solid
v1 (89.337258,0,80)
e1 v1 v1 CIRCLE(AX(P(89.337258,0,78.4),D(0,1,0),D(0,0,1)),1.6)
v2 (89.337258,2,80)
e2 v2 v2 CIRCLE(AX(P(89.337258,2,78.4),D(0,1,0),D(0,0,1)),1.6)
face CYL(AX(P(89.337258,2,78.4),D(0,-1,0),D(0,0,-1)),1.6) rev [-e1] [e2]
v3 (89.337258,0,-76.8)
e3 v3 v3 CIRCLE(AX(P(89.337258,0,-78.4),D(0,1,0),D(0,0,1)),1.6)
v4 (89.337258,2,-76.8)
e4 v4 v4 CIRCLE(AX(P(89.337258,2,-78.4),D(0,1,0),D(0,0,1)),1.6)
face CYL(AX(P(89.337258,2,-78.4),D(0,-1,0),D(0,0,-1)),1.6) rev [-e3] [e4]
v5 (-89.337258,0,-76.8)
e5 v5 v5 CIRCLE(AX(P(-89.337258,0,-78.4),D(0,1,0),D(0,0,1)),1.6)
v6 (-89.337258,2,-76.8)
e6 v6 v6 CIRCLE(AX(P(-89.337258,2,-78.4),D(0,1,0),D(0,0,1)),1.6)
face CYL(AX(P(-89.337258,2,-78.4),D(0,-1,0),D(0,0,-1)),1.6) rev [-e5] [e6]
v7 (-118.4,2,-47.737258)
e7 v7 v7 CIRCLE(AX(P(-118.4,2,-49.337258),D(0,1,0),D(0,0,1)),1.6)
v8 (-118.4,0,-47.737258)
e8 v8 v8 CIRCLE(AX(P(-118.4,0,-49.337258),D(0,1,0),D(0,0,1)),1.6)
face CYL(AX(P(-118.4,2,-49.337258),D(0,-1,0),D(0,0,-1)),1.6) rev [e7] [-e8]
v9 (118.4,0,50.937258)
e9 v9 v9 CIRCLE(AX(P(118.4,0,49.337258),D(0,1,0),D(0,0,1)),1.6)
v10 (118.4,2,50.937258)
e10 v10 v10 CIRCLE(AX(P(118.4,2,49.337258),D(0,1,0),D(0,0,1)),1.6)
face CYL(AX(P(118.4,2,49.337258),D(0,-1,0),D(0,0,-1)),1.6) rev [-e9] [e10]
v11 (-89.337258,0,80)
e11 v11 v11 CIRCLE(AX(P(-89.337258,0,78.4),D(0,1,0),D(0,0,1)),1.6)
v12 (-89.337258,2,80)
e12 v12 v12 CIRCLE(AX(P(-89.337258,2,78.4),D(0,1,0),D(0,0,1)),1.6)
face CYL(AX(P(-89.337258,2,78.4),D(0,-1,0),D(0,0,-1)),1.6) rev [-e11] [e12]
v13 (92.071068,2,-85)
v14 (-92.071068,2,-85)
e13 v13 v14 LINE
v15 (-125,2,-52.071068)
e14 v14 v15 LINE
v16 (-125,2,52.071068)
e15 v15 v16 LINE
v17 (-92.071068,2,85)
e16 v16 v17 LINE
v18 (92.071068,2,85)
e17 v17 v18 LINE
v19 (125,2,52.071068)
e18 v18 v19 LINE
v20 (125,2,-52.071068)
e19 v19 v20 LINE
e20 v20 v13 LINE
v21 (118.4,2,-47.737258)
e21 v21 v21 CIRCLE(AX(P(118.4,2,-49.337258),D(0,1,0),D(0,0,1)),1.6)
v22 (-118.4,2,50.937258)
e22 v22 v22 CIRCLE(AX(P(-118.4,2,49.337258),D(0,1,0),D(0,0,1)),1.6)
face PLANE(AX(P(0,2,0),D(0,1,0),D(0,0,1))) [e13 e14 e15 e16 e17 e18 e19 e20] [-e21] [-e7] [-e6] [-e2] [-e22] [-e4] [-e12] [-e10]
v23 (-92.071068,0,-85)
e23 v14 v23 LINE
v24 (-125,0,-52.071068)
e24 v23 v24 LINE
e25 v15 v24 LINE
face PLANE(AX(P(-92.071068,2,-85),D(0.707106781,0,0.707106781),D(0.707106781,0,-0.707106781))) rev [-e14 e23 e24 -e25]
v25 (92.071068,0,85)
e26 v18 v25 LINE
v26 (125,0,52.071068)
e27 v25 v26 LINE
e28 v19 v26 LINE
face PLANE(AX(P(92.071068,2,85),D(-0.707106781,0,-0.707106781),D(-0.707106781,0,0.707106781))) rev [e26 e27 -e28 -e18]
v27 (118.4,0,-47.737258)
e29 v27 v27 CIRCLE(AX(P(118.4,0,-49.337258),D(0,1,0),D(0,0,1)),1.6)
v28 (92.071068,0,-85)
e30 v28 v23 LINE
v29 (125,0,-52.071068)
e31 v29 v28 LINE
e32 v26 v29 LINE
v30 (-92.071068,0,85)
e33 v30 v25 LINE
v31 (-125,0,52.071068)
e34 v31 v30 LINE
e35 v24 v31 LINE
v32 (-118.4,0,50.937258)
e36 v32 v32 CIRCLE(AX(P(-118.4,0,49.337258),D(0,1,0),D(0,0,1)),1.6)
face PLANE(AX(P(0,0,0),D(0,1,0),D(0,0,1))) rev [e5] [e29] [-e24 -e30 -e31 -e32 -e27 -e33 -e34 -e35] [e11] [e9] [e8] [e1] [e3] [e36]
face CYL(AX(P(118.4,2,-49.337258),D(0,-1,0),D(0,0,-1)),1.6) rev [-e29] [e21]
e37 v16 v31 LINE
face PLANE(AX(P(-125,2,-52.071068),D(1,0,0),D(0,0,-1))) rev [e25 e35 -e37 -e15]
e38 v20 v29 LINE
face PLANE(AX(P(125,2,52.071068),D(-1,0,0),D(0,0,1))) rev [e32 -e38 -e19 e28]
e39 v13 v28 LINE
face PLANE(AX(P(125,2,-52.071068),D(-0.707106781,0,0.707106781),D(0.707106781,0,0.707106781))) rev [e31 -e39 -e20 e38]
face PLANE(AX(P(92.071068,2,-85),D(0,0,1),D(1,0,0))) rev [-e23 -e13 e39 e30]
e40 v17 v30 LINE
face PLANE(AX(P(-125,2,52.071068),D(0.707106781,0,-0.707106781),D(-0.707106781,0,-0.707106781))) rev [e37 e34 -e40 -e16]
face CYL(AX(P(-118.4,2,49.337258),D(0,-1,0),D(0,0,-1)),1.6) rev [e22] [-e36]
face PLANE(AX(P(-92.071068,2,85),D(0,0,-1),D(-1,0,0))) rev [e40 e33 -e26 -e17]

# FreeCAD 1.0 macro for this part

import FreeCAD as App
import Part
import Sketcher

doc = App.newDocument("Part")
body = doc.addObject("PartDesign::Body", "Body")

sketch1 = doc.addObject("Sketcher::SketchObject", "Sketch")
body.addObject(sketch1)
sketch1.AttachmentSupport = (doc.XZ_Plane, [""])
sketch1.MapMode = "FlatFace"
sketch1.addGeometry(Part.LineSegment(App.Vector(125, -52.1, 0), App.Vector(92.1, -85, 0)), False)
sketch1.addGeometry(Part.LineSegment(App.Vector(92.1, -85, 0), App.Vector(-92.1, -85, 0)), False)
sketch1.addGeometry(Part.LineSegment(App.Vector(-92.1, -85, 0), App.Vector(-125, -52.1, 0)), False)
sketch1.addGeometry(Part.LineSegment(App.Vector(-125, -52.1, 0), App.Vector(-125, 52.1, 0)), False)
sketch1.addGeometry(Part.LineSegment(App.Vector(-125, 52.1, 0), App.Vector(-92.1, 85, 0)), False)
sketch1.addGeometry(Part.LineSegment(App.Vector(-92.1, 85, 0), App.Vector(92.1, 85, 0)), False)
sketch1.addGeometry(Part.LineSegment(App.Vector(92.1, 85, 0), App.Vector(125, 52.1, 0)), False)
sketch1.addGeometry(Part.LineSegment(App.Vector(125, 52.1, 0), App.Vector(125, -52.1, 0)), False)
sketch1.addGeometry(Part.Circle(App.Vector(-89.3, 78.4, 0), App.Vector(0, 0, 1), 1.6), False)
sketch1.addGeometry(Part.Circle(App.Vector(-118.4, 49.3, 0), App.Vector(0, 0, 1), 1.6), False)
sketch1.addGeometry(Part.Circle(App.Vector(89.3, 78.4, 0), App.Vector(0, 0, 1), 1.6), False)
sketch1.addGeometry(Part.Circle(App.Vector(118.4, 49.3, 0), App.Vector(0, 0, 1), 1.6), False)
sketch1.addGeometry(Part.Circle(App.Vector(-118.4, -49.3, 0), App.Vector(0, 0, 1), 1.6), False)
sketch1.addGeometry(Part.Circle(App.Vector(-89.3, -78.4, 0), App.Vector(0, 0, 1), 1.6), False)
sketch1.addGeometry(Part.Circle(App.Vector(118.4, -49.3, 0), App.Vector(0, 0, 1), 1.6), False)
sketch1.addGeometry(Part.Circle(App.Vector(89.3, -78.4, 0), App.Vector(0, 0, 1), 1.6), False)
sketch1.addConstraint(Sketcher.Constraint("Coincident", 0, 2, 1, 1))
sketch1.addConstraint(Sketcher.Constraint("Coincident", 1, 2, 2, 1))
sketch1.addConstraint(Sketcher.Constraint("Coincident", 2, 2, 3, 1))
sketch1.addConstraint(Sketcher.Constraint("Coincident", 3, 2, 4, 1))
sketch1.addConstraint(Sketcher.Constraint("Coincident", 4, 2, 5, 1))
sketch1.addConstraint(Sketcher.Constraint("Coincident", 5, 2, 6, 1))
sketch1.addConstraint(Sketcher.Constraint("Coincident", 6, 2, 7, 1))
sketch1.addConstraint(Sketcher.Constraint("Coincident", 7, 2, 0, 1))
sketch1.addConstraint(Sketcher.Constraint("Horizontal", 1))
sketch1.addConstraint(Sketcher.Constraint("Vertical", 3))
sketch1.addConstraint(Sketcher.Constraint("Horizontal", 5))
sketch1.addConstraint(Sketcher.Constraint("Vertical", 7))
sketch1.addConstraint(Sketcher.Constraint("Equal", 8, 9))
sketch1.addConstraint(Sketcher.Constraint("Equal", 9, 10))
sketch1.addConstraint(Sketcher.Constraint("Equal", 10, 11))
sketch1.addConstraint(Sketcher.Constraint("Equal", 11, 12))
sketch1.addConstraint(Sketcher.Constraint("Equal", 12, 13))
sketch1.addConstraint(Sketcher.Constraint("Equal", 13, 14))
sketch1.addConstraint(Sketcher.Constraint("Equal", 14, 15))
sketch1.addConstraint(Sketcher.Constraint("Symmetric", 11, 3, 12, 3, -1, 1))
sketch1.addConstraint(Sketcher.Constraint("Symmetric", 10, 3, 13, 3, -1, 1))
sketch1.addConstraint(Sketcher.Constraint("Symmetric", 9, 3, 14, 3, -1, 1))
sketch1.addConstraint(Sketcher.Constraint("Symmetric", 8, 3, 15, 3, -1, 1))
sketch1.addConstraint(Sketcher.Constraint("Symmetric", 0, 2, 4, 2, -1, 1))
sketch1.addConstraint(Sketcher.Constraint("Symmetric", 2, 2, 6, 2, -1, 1))
sketch1.addConstraint(Sketcher.Constraint("Symmetric", 8, 3, 10, 3, -2))
sketch1.addConstraint(Sketcher.Constraint("Symmetric", 9, 3, 11, 3, -2))
sketch1.addConstraint(Sketcher.Constraint("Perpendicular", 0, 2))
sketch1.addConstraint(Sketcher.Constraint("Perpendicular", 2, 4))
sketch1.addConstraint(Sketcher.Constraint("Perpendicular", 4, 6))
sketch1.addConstraint(Sketcher.Constraint("Horizontal", 3, 2, 6, 2))
sketch1.addConstraint(Sketcher.Constraint("Vertical", 1, 2, 4, 2))
sketch1.addConstraint(Sketcher.Constraint("Diameter", 8, 3.2))
sketch1.addConstraint(Sketcher.Constraint("DistanceY", 0, 2, -1, 1, 85.0))
sketch1.addConstraint(Sketcher.Constraint("DistanceX", 2, 2, -1, 1, 125.0))
sketch1.addConstraint(Sketcher.Constraint("DistanceY", -1, 1, 8, 3, 78.4))
sketch1.addConstraint(Sketcher.Constraint("DistanceX", 9, 3, -1, 1, 118.4))
sketch1.addConstraint(Sketcher.Constraint("DistanceX", 1, 2, 1, 1, 184.142136))
sketch1.addConstraint(Sketcher.Constraint("DistanceX", 8, 3, -1, 1, 89.337258))
sketch1.addConstraint(Sketcher.Constraint("DistanceY", -1, 1, 9, 3, 49.337258))
pad1 = doc.addObject("PartDesign::Pad", "Pad")
body.addObject(pad1)
pad1.Profile = sketch1
pad1.Length = 2
pad1.Reversed = True

doc.recompute()
